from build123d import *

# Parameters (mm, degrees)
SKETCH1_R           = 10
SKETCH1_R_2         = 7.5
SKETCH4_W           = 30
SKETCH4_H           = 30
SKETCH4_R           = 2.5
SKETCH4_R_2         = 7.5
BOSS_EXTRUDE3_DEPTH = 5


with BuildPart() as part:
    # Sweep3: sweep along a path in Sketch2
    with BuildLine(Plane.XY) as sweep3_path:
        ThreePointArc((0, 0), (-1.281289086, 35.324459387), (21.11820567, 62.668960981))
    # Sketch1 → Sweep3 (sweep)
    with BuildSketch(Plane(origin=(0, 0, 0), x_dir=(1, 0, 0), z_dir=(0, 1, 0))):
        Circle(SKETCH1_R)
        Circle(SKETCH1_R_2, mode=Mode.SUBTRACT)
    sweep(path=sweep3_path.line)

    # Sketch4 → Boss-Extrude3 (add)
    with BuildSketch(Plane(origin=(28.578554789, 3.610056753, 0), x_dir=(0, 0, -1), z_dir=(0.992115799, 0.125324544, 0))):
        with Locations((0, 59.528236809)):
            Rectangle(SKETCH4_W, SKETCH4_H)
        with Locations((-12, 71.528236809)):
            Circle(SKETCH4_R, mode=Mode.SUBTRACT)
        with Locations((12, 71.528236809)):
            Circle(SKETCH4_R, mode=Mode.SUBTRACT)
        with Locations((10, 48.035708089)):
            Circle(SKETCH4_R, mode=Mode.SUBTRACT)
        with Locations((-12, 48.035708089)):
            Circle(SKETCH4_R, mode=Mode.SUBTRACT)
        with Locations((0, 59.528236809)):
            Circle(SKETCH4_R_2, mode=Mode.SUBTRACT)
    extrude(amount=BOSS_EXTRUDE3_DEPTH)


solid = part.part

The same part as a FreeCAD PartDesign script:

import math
import FreeCAD as App
import Part
import Sketcher

V = App.Vector

doc = App.newDocument("Part")
params = doc.addObject("Spreadsheet::Sheet", "Params")
for row, (alias, value) in enumerate([
    ("sketch1_diameter", "20 mm"),
    ("sketch1_diameter2", "15 mm"),
    ("sketch2_radius", "50 mm"),
    ("sketch3_diameter", "5 mm"),
    ("sketch3_diameter2", "15 mm"),
    ("sketch3_width", "30 mm"),
    ("pad1_length", "5 mm"),
], start=1):
    params.set(f"A{row}", alias)
    params.set(f"B{row}", "=" + value)
    params.setAlias(f"B{row}", alias)

body = doc.addObject("PartDesign::Body", "Body")

sketch1 = body.newObject("Sketcher::SketchObject", "Sketch")
sketch1.AttachmentSupport = (doc.getObject("XZ_Plane"), [""])
sketch1.MapMode = "FlatFace"
sketch1.addGeometry(Part.Circle(V(0, 0, 0), V(0, 0, 1), 10), False)
sketch1.addGeometry(Part.Circle(V(0, 0, 0), V(0, 0, 1), 7.5), False)
sketch1.addConstraint(Sketcher.Constraint("Coincident", 0, 3, -1, 1))
sketch1.addConstraint(Sketcher.Constraint("Coincident", 1, 3, -1, 1))
sketch1.addConstraint(Sketcher.Constraint("Diameter", 0, 20.0))
sketch1.addConstraint(Sketcher.Constraint("Diameter", 1, 15.0))
sketch1.setExpression("Constraints[2]", "Params.sketch1_diameter")
sketch1.setExpression("Constraints[3]", "Params.sketch1_diameter2")

sketch2 = body.newObject("Sketcher::SketchObject", "Sketch001")
sketch2.AttachmentSupport = (doc.getObject("XY_Plane"), [""])
sketch2.MapMode = "FlatFace"
sketch2.addGeometry(Part.ArcOfCircle(Part.Circle(V(46.100781, 19.357635, 0), V(0, 0, 1), 50), math.radians(119.976946), math.radians(202.777448)), False)
sketch2.addConstraint(Sketcher.Constraint("Coincident", 0, 2, -1, 1))
sketch2.addConstraint(Sketcher.Constraint("Radius", 0, 50.0))
sketch2.addConstraint(Sketcher.Constraint("DistanceX", -1, 1, 0, 3, 46.100781))
sketch2.addConstraint(Sketcher.Constraint("DistanceY", -1, 1, 0, 1, 62.668961))
sketch2.setExpression("Constraints[1]", "Params.sketch2_radius")
doc.recompute()

additivepipe = body.newObject("PartDesign::AdditivePipe", "AdditivePipe")
additivepipe.Profile = sketch1
additivepipe.Spine = (sketch2, ["Edge1"])

sketch3 = body.newObject("Sketcher::SketchObject", "Sketch002")
sketch3.Placement = App.Placement(V(28.578555, 3.610057, 0), App.Rotation(V(0, 0, -1), V(-0.125324544, 0.992115799, 0), V(0.992115799, 0.125324544, 0), "ZXY"))
sketch3.addGeometry(Part.LineSegment(V(-15, 74.528237, 0), V(-15, 44.528237, 0)), False)
sketch3.addGeometry(Part.LineSegment(V(-15, 44.528237, 0), V(15, 44.528237, 0)), False)
sketch3.addGeometry(Part.LineSegment(V(15, 44.528237, 0), V(15, 74.528237, 0)), False)
sketch3.addGeometry(Part.LineSegment(V(15, 74.528237, 0), V(-15, 74.528237, 0)), False)
sketch3.addGeometry(Part.Circle(V(-12, 48.035708, 0), V(0, 0, 1), 2.5), False)
sketch3.addGeometry(Part.Circle(V(10, 48.035708, 0), V(0, 0, 1), 2.5), False)
sketch3.addGeometry(Part.Circle(V(0, 59.528237, 0), V(0, 0, 1), 7.5), False)
sketch3.addGeometry(Part.Circle(V(-12, 71.528237, 0), V(0, 0, 1), 2.5), False)
sketch3.addGeometry(Part.Circle(V(12, 71.528237, 0), V(0, 0, 1), 2.5), False)
sketch3.addConstraint(Sketcher.Constraint("Coincident", 0, 2, 1, 1))
sketch3.addConstraint(Sketcher.Constraint("Coincident", 1, 2, 2, 1))
sketch3.addConstraint(Sketcher.Constraint("Coincident", 2, 2, 3, 1))
sketch3.addConstraint(Sketcher.Constraint("Coincident", 3, 2, 0, 1))
sketch3.addConstraint(Sketcher.Constraint("Vertical", 0))
sketch3.addConstraint(Sketcher.Constraint("Horizontal", 1))
sketch3.addConstraint(Sketcher.Constraint("Vertical", 2))
sketch3.addConstraint(Sketcher.Constraint("Horizontal", 3))
sketch3.addConstraint(Sketcher.Constraint("Equal", 4, 5))
sketch3.addConstraint(Sketcher.Constraint("Equal", 5, 7))
sketch3.addConstraint(Sketcher.Constraint("Equal", 7, 8))
sketch3.addConstraint(Sketcher.Constraint("Symmetric", 7, 3, 8, 3, -2))
sketch3.addConstraint(Sketcher.Constraint("PointOnObject", 6, 3, -2))
sketch3.addConstraint(Sketcher.Constraint("Horizontal", 4, 3, 5, 3))
sketch3.addConstraint(Sketcher.Constraint("Vertical", 4, 3, 7, 3))
sketch3.addConstraint(Sketcher.Constraint("Equal", 3, 0))
sketch3.addConstraint(Sketcher.Constraint("Diameter", 4, 5.0))
sketch3.addConstraint(Sketcher.Constraint("Diameter", 6, 15.0))
sketch3.addConstraint(Sketcher.Constraint("DistanceX", 1, 1, 1, 2, 30.0))
sketch3.addConstraint(Sketcher.Constraint("DistanceX", 4, 3, -1, 1, 12.0))
sketch3.addConstraint(Sketcher.Constraint("DistanceX", -1, 1, 5, 3, 10.0))
sketch3.addConstraint(Sketcher.Constraint("DistanceX", 0, 2, -1, 1, 15.0))
sketch3.addConstraint(Sketcher.Constraint("DistanceY", 6, 3, 7, 3, 12.0))
sketch3.addConstraint(Sketcher.Constraint("DistanceY", 0, 2, 6, 3, 15.0))
sketch3.addConstraint(Sketcher.Constraint("DistanceY", -1, 1, 4, 3, 48.035708))
sketch3.addConstraint(Sketcher.Constraint("DistanceY", 5, 3, 6, 3, 11.492529))
sketch3.setExpression("Constraints[16]", "Params.sketch3_diameter")
sketch3.setExpression("Constraints[17]", "Params.sketch3_diameter2")
sketch3.setExpression("Constraints[18]", "Params.sketch3_width")
pad1 = body.newObject("PartDesign::Pad", "Pad")
pad1.Profile = sketch3
pad1.setExpression("Length", "Params.pad1_length")

doc.recompute()
